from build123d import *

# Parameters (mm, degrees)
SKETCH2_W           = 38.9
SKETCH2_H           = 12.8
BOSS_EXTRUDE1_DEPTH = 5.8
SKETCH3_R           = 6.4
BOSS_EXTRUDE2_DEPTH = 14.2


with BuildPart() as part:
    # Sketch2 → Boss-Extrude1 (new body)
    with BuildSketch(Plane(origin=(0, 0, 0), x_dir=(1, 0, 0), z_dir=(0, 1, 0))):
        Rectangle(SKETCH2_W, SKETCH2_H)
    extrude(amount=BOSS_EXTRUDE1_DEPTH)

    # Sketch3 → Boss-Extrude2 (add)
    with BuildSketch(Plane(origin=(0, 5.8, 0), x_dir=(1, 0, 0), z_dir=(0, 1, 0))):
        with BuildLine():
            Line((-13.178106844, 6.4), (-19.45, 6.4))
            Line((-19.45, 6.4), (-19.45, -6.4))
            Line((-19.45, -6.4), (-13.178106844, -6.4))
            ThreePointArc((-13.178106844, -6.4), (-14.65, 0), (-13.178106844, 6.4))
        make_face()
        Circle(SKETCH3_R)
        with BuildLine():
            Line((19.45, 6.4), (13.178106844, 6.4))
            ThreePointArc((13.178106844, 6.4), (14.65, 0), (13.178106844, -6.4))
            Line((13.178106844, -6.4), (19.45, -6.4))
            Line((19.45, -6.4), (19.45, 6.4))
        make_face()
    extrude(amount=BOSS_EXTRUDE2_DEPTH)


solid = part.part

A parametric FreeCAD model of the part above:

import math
import FreeCAD as App
import Part
import Sketcher

V = App.Vector


def add_polygon(sketch, points):
    """Adds a closed chain of lines whose ends are joined by coincident constraints."""
    first, n = sketch.GeometryCount, len(points)
    for a, b in zip(points, points[1:] + points[:1]):
        sketch.addGeometry(Part.LineSegment(App.Vector(*a, 0), App.Vector(*b, 0)), False)
    for i in range(n):
        sketch.addConstraint(Sketcher.Constraint("Coincident", first + i, 2, first + (i + 1) % n, 1))

doc = App.newDocument("Part")
params = doc.addObject("Spreadsheet::Sheet", "Params")
for row, (alias, value) in enumerate([
    ("sketch1_width", "38.9 mm"),
    ("sketch1_height", "12.8 mm"),
    ("pad1_length", "5.8 mm"),
    ("sketch2_diameter", "12.8 mm"),
    ("sketch2_radius", "14.65 mm"),
    ("sketch2_height", "12.8 mm"),
    ("pad2_length", "14.2 mm"),
], start=1):
    params.set(f"A{row}", alias)
    params.set(f"B{row}", "=" + value)
    params.setAlias(f"B{row}", alias)

body = doc.addObject("PartDesign::Body", "Body")

# Sketch on XZ plane
sketch1 = doc.addObject("Sketcher::SketchObject", "Sketch")
body.addObject(sketch1)
sketch1.AttachmentSupport = (doc.XZ_Plane, [""])
sketch1.MapMode = "FlatFace"
add_polygon(sketch1, [(-19, -6), (-19, 6), (19, 6), (19, -6)])  # lines 0-3
sketch1.addConstraint([
    Sketcher.Constraint("Vertical", 0),
    Sketcher.Constraint("Horizontal", 1),
    Sketcher.Constraint("Vertical", 2),
    Sketcher.Constraint("Horizontal", 3),
    Sketcher.Constraint("Symmetric", 0, 2, 2, 2, -1, 1),
    Sketcher.Constraint("DistanceX", 1, 1, 1, 2, 38.9),
    Sketcher.Constraint("DistanceY", 0, 1, 0, 2, 12.8),
])
sketch1.setExpression("Constraints[9]", "Params.sketch1_width")
sketch1.setExpression("Constraints[10]", "Params.sketch1_height")
pad1 = doc.addObject("PartDesign::Pad", "Pad")
body.addObject(pad1)
pad1.Profile = sketch1
pad1.setExpression("Length", "Params.pad1_length")
pad1.Reversed = True

# Sketch on XZ plane
sketch2 = doc.addObject("Sketcher::SketchObject", "Sketch001")
body.addObject(sketch2)
sketch2.AttachmentSupport = (doc.XZ_Plane, [""])
sketch2.MapMode = "FlatFace"
sketch2.AttachmentOffset = App.Placement(V(0, 0, -5.8), App.Rotation())
sketch2.addGeometry([
    Part.LineSegment(V(-13, -6, 0), V(-19, -6, 0)),  # 0
    Part.LineSegment(V(-19, -6, 0), V(-19, 6, 0)),  # 1
    Part.LineSegment(V(-19, 6, 0), V(-13, 6, 0)),  # 2
    Part.ArcOfCircle(Part.Circle(V(0, 0, 0), V(0, 0, 1), 15), math.radians(154), math.radians(206)),  # 3
    Part.Circle(V(0, 0, 0), V(0, 0, 1), 6),  # 4
    Part.LineSegment(V(19, -6, 0), V(13, -6, 0)),  # 5
    Part.ArcOfCircle(Part.Circle(V(0, 0, 0), V(0, 0, 1), 15), math.radians(-26), math.radians(26)),  # 6
    Part.LineSegment(V(13, 6, 0), V(19, 6, 0)),  # 7
    Part.LineSegment(V(19, 6, 0), V(19, -6, 0)),  # 8
], False)
sketch2.addConstraint([
    Sketcher.Constraint("Coincident", 0, 2, 1, 1),
    Sketcher.Constraint("Coincident", 1, 2, 2, 1),
    Sketcher.Constraint("Coincident", 2, 2, 3, 1),
    Sketcher.Constraint("Coincident", 3, 2, 0, 1),
    Sketcher.Constraint("Coincident", 5, 2, 6, 1),
    Sketcher.Constraint("Coincident", 6, 2, 7, 1),
    Sketcher.Constraint("Coincident", 7, 2, 8, 1),
    Sketcher.Constraint("Coincident", 8, 2, 5, 1),
    Sketcher.Constraint("Horizontal", 0),
    Sketcher.Constraint("Vertical", 1),
    Sketcher.Constraint("Horizontal", 2),
    Sketcher.Constraint("Horizontal", 5),
    Sketcher.Constraint("Horizontal", 7),
    Sketcher.Constraint("Vertical", 8),
    Sketcher.Constraint("Coincident", 3, 3, -1, 1),
    Sketcher.Constraint("Coincident", 4, 3, -1, 1),
    Sketcher.Constraint("Coincident", 6, 3, -1, 1),
    Sketcher.Constraint("Equal", 3, 6),
    Sketcher.Constraint("Symmetric", 0, 2, 7, 2, -1, 1),
    Sketcher.Constraint("Horizontal", 3, 2, 5, 2),
    Sketcher.Constraint("Horizontal", 2, 2, 6, 2),
    Sketcher.Constraint("Diameter", 4, 12.8),
    Sketcher.Constraint("Radius", 3, 14.65),
    Sketcher.Constraint("DistanceY", 1, 1, 1, 2, 12.8),
    Sketcher.Constraint("DistanceX", 0, 2, -1, 1, 19.45),
])
sketch2.setExpression("Constraints[21]", "Params.sketch2_diameter")
sketch2.setExpression("Constraints[22]", "Params.sketch2_radius")
sketch2.setExpression("Constraints[23]", "Params.sketch2_height")
pad2 = doc.addObject("PartDesign::Pad", "Pad001")
body.addObject(pad2)
pad2.Profile = sketch2
pad2.setExpression("Length", "Params.pad2_length")
pad2.Reversed = True

doc.recompute()
